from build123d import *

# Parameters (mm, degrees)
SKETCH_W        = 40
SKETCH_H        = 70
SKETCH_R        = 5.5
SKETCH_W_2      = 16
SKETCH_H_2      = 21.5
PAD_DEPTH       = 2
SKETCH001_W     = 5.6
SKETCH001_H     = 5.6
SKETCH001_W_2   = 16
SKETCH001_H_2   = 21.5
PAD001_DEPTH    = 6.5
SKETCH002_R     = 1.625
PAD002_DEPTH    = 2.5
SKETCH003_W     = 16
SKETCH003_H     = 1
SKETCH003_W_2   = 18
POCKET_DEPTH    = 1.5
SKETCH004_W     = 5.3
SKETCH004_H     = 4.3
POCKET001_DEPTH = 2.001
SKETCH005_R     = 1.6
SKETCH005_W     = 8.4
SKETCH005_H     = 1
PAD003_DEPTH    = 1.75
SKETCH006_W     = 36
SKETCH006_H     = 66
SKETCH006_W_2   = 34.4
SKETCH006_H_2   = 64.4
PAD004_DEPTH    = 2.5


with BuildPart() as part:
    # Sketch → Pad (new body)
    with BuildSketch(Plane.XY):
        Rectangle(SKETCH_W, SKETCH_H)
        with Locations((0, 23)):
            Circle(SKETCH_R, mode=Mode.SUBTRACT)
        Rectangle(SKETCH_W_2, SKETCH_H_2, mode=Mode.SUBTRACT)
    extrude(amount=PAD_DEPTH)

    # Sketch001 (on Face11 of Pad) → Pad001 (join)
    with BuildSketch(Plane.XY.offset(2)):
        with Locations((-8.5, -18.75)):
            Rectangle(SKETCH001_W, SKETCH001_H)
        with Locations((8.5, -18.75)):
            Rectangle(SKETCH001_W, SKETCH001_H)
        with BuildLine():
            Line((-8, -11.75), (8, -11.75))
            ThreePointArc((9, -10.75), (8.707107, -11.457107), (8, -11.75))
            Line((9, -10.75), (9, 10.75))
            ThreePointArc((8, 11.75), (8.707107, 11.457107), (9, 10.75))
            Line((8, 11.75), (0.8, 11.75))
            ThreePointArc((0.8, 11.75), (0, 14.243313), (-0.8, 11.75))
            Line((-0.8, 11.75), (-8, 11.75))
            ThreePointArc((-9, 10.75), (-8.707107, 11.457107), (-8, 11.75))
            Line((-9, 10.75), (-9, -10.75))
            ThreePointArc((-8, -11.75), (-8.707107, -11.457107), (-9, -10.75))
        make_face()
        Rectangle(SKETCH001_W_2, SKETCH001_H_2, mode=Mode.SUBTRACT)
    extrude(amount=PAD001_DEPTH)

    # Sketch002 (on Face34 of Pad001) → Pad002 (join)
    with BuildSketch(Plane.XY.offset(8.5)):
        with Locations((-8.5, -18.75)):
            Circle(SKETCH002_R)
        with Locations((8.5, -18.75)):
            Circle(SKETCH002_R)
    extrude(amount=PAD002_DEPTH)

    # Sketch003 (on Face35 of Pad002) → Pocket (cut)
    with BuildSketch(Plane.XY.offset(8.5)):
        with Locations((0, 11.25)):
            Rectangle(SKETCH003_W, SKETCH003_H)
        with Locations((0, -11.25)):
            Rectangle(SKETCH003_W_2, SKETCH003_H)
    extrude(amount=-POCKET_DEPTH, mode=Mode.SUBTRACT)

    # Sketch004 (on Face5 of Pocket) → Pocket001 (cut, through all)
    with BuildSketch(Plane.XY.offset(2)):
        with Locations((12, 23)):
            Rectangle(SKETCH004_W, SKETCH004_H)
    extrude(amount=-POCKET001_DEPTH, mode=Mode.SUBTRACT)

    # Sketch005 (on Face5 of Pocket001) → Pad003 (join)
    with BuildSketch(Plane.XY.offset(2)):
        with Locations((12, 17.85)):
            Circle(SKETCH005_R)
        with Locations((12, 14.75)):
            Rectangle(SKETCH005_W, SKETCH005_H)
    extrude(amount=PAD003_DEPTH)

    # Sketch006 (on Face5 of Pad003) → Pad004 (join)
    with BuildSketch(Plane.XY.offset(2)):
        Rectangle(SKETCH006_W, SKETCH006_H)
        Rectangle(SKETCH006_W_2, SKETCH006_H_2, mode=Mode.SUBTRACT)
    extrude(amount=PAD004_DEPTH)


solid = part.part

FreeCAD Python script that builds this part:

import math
import FreeCAD as App
import Part
import Sketcher

V = App.Vector

doc = App.newDocument("Part")
params = doc.addObject("Spreadsheet::Sheet", "Params")
for row, (alias, value) in enumerate([
    ("sketch1_diameter", "11 mm"),
    ("sketch1_width", "40 mm"),
    ("sketch1_width2", "16 mm"),
    ("sketch1_height", "70 mm"),
    ("sketch1_height2", "21.5 mm"),
    ("pad1_length", "2 mm"),
    ("sketch2_radius", "0.999999 mm"),
    ("sketch2_width", "16 mm"),
    ("sketch2_width2", "5.6 mm"),
    ("sketch2_width3", "7.2 mm"),
    ("sketch2_height", "21.5 mm"),
    ("pad2_length", "6.5 mm"),
    ("sketch3_diameter", "3.25 mm"),
    ("pad3_length", "2.5 mm"),
    ("sketch4_width", "16 mm"),
    ("sketch4_width2", "18 mm"),
    ("sketch4_height", "1 mm"),
    ("pocket1_length", "1.5 mm"),
    ("sketch5_width", "5.3 mm"),
    ("sketch5_height", "4.3 mm"),
    ("sketch6_diameter", "3.2 mm"),
    ("sketch6_height", "1 mm"),
    ("sketch6_width", "8.4 mm"),
    ("pad4_length", "1.75 mm"),
    ("sketch7_width", "36 mm"),
    ("sketch7_height", "66 mm"),
    ("sketch7_width2", "34.4 mm"),
    ("sketch7_height2", "64.4 mm"),
    ("pad5_length", "2.5 mm"),
], start=1):
    params.set(f"A{row}", alias)
    params.set(f"B{row}", "=" + value)
    params.setAlias(f"B{row}", alias)

body = doc.addObject("PartDesign::Body", "Body")

# Sketch on XY plane
sketch1 = body.newObject("Sketcher::SketchObject", "Sketch")
sketch1.AttachmentSupport = (doc.getObject("XY_Plane"), [""])
sketch1.MapMode = "FlatFace"
sketch1.addGeometry([
    Part.LineSegment(V(-20, 35, 0), V(-20, -35, 0)),  # 0
    Part.LineSegment(V(-20, -35, 0), V(20, -35, 0)),  # 1
    Part.LineSegment(V(20, -35, 0), V(20, 35, 0)),  # 2
    Part.LineSegment(V(20, 35, 0), V(-20, 35, 0)),  # 3
    Part.LineSegment(V(8, -11, 0), V(-8, -11, 0)),  # 4
    Part.LineSegment(V(-8, -11, 0), V(-8, 11, 0)),  # 5
    Part.LineSegment(V(-8, 11, 0), V(8, 11, 0)),  # 6
    Part.LineSegment(V(8, 11, 0), V(8, -11, 0)),  # 7
    Part.Circle(V(0, 23, 0), V(0, 0, 1), 6),  # 8
], False)
sketch1.addConstraint([
    Sketcher.Constraint("Coincident", 0, 2, 1, 1),
    Sketcher.Constraint("Coincident", 1, 2, 2, 1),
    Sketcher.Constraint("Coincident", 2, 2, 3, 1),
    Sketcher.Constraint("Coincident", 3, 2, 0, 1),
    Sketcher.Constraint("Coincident", 4, 2, 5, 1),
    Sketcher.Constraint("Coincident", 5, 2, 6, 1),
    Sketcher.Constraint("Coincident", 6, 2, 7, 1),
    Sketcher.Constraint("Coincident", 7, 2, 4, 1),
    Sketcher.Constraint("Vertical", 0),
    Sketcher.Constraint("Horizontal", 1),
    Sketcher.Constraint("Vertical", 2),
    Sketcher.Constraint("Horizontal", 3),
    Sketcher.Constraint("Horizontal", 4),
    Sketcher.Constraint("Vertical", 5),
    Sketcher.Constraint("Horizontal", 6),
    Sketcher.Constraint("Vertical", 7),
    Sketcher.Constraint("Symmetric", 0, 2, 2, 2, -1, 1),
    Sketcher.Constraint("Symmetric", 4, 2, 6, 2, -1, 1),
    Sketcher.Constraint("PointOnObject", 8, 3, -2),
    Sketcher.Constraint("Diameter", 8, 11.0),
    Sketcher.Constraint("DistanceX", 1, 1, 1, 2, 40.0),
    Sketcher.Constraint("DistanceX", 4, 2, 4, 1, 16.0),
    Sketcher.Constraint("DistanceY", 0, 2, 0, 1, 70.0),
    Sketcher.Constraint("DistanceY", 5, 1, 5, 2, 21.5),
    Sketcher.Constraint("DistanceY", -1, 1, 8, 3, 23.0),
])
sketch1.setExpression("Constraints[19]", "Params.sketch1_diameter")
sketch1.setExpression("Constraints[20]", "Params.sketch1_width")
sketch1.setExpression("Constraints[21]", "Params.sketch1_width2")
sketch1.setExpression("Constraints[22]", "Params.sketch1_height")
sketch1.setExpression("Constraints[23]", "Params.sketch1_height2")
pad1 = body.newObject("PartDesign::Pad", "Pad")
pad1.Profile = sketch1
pad1.setExpression("Length", "Params.pad1_length")

# Sketch on XY plane
sketch2 = body.newObject("Sketcher::SketchObject", "Sketch001")
sketch2.AttachmentSupport = (doc.getObject("XY_Plane"), [""])
sketch2.MapMode = "FlatFace"
sketch2.AttachmentOffset = App.Placement(V(0, 0, 2), App.Rotation())
sketch2.addGeometry([
    Part.LineSegment(V(-11.3, -15.9, 0), V(-11.3, -21.6, 0)),  # 0
    Part.LineSegment(V(-11.3, -21.6, 0), V(-5.7, -21.6, 0)),  # 1
    Part.LineSegment(V(-5.7, -21.6, 0), V(-5.7, -15.9, 0)),  # 2
    Part.LineSegment(V(-5.7, -15.9, 0), V(-11.3, -15.9, 0)),  # 3
    Part.LineSegment(V(5.7, -15.9, 0), V(5.7, -21.6, 0)),  # 4
    Part.LineSegment(V(5.7, -21.6, 0), V(11.3, -21.6, 0)),  # 5
    Part.LineSegment(V(11.3, -21.6, 0), V(11.3, -15.9, 0)),  # 6
    Part.LineSegment(V(11.3, -15.9, 0), V(5.7, -15.9, 0)),  # 7
    Part.LineSegment(V(-8, -11.8, 0), V(8, -11.8, 0)),  # 8
    Part.ArcOfCircle(Part.Circle(V(8, -10.8, 0), V(0, 0, 1), 1), math.radians(-90), math.radians(0)),  # 9
    Part.LineSegment(V(9, -10.8, 0), V(9, 10.8, 0)),  # 10
    Part.ArcOfCircle(Part.Circle(V(8, 10.8, 0), V(0, 0, 1), 1), math.radians(0), math.radians(90)),  # 11
    Part.LineSegment(V(8, 11.8, 0), V(0.8, 11.8, 0)),  # 12
    Part.ArcOfCircle(Part.Circle(V(0, 12.9, 0), V(0, 0, 1), 1.4), math.radians(-54), math.radians(234)),  # 13
    Part.LineSegment(V(-0.8, 11.8, 0), V(-8, 11.8, 0)),  # 14
    Part.ArcOfCircle(Part.Circle(V(-8, 10.8, 0), V(0, 0, 1), 1), math.radians(90), math.radians(180)),  # 15
    Part.LineSegment(V(-9, 10.8, 0), V(-9, -10.8, 0)),  # 16
    Part.ArcOfCircle(Part.Circle(V(-8, -10.8, 0), V(0, 0, 1), 1), math.radians(180), math.radians(270)),  # 17
    Part.LineSegment(V(8, -10.8, 0), V(-8, -10.8, 0)),  # 18
    Part.LineSegment(V(-8, -10.8, 0), V(-8, 10.8, 0)),  # 19
    Part.LineSegment(V(-8, 10.8, 0), V(8, 10.8, 0)),  # 20
    Part.LineSegment(V(8, 10.8, 0), V(8, -10.8, 0)),  # 21
], False)
sketch2.addConstraint([
    Sketcher.Constraint("Coincident", 0, 2, 1, 1),
    Sketcher.Constraint("Coincident", 1, 2, 2, 1),
    Sketcher.Constraint("Coincident", 2, 2, 3, 1),
    Sketcher.Constraint("Coincident", 3, 2, 0, 1),
    Sketcher.Constraint("Coincident", 4, 2, 5, 1),
    Sketcher.Constraint("Coincident", 5, 2, 6, 1),
    Sketcher.Constraint("Coincident", 6, 2, 7, 1),
    Sketcher.Constraint("Coincident", 7, 2, 4, 1),
    Sketcher.Constraint("Tangent", 8, 2, 9, 1),
    Sketcher.Constraint("Tangent", 9, 2, 10, 1),
    Sketcher.Constraint("Tangent", 10, 2, 11, 1),
    Sketcher.Constraint("Tangent", 11, 2, 12, 1),
    Sketcher.Constraint("Coincident", 12, 2, 13, 1),
    Sketcher.Constraint("Coincident", 13, 2, 14, 1),
    Sketcher.Constraint("Tangent", 14, 2, 15, 1),
    Sketcher.Constraint("Tangent", 15, 2, 16, 1),
    Sketcher.Constraint("Tangent", 16, 2, 17, 1),
    Sketcher.Constraint("Tangent", 17, 2, 8, 1),
    Sketcher.Constraint("Coincident", 18, 2, 19, 1),
    Sketcher.Constraint("Coincident", 19, 2, 20, 1),
    Sketcher.Constraint("Coincident", 20, 2, 21, 1),
    Sketcher.Constraint("Coincident", 21, 2, 18, 1),
    Sketcher.Constraint("Vertical", 0),
    Sketcher.Constraint("Horizontal", 1),
    Sketcher.Constraint("Vertical", 2),
    Sketcher.Constraint("Horizontal", 3),
    Sketcher.Constraint("Vertical", 4),
    Sketcher.Constraint("Horizontal", 5),
    Sketcher.Constraint("Vertical", 6),
    Sketcher.Constraint("Horizontal", 7),
    Sketcher.Constraint("Horizontal", 8),
    Sketcher.Constraint("Vertical", 10),
    Sketcher.Constraint("Horizontal", 12),
    Sketcher.Constraint("Horizontal", 14),
    Sketcher.Constraint("Vertical", 16),
    Sketcher.Constraint("Horizontal", 18),
    Sketcher.Constraint("Vertical", 19),
    Sketcher.Constraint("Horizontal", 20),
    Sketcher.Constraint("Vertical", 21),
    Sketcher.Constraint("Coincident", 18, 2, 17, 3),
    Sketcher.Constraint("Coincident", 19, 2, 15, 3),
    Sketcher.Constraint("Coincident", 20, 2, 11, 3),
    Sketcher.Constraint("Coincident", 21, 2, 9, 3),
    Sketcher.Constraint("Symmetric", 9, 3, 15, 3, -1, 1),
    Sketcher.Constraint("Symmetric", 1, 2, 4, 2, -2),
    Sketcher.Constraint("Symmetric", 3, 2, 6, 2, -2),
    Sketcher.Constraint("PointOnObject", 13, 3, -2),
    Sketcher.Constraint("Equal", 7, 0),
    Sketcher.Constraint("Radius", 9, 0.999999),
    Sketcher.Constraint("DistanceX", 8, 1, 8, 2, 16.0),
    Sketcher.Constraint("DistanceX", 1, 1, 1, 2, 5.6),
    Sketcher.Constraint("DistanceX", 12, 2, 12, 1, 7.2),
    Sketcher.Constraint("DistanceY", 10, 1, 10, 2, 21.5),
    Sketcher.Constraint("Radius", 13, 1.375),
    Sketcher.Constraint("DistanceX", 0, 2, 4, 2, 17.0),
    Sketcher.Constraint("DistanceY", 0, 2, 17, 3, 10.799999),
])
sketch2.setExpression("Constraints[48]", "Params.sketch2_radius")
sketch2.setExpression("Constraints[49]", "Params.sketch2_width")
sketch2.setExpression("Constraints[50]", "Params.sketch2_width2")
sketch2.setExpression("Constraints[51]", "Params.sketch2_width3")
sketch2.setExpression("Constraints[52]", "Params.sketch2_height")
pad2 = body.newObject("PartDesign::Pad", "Pad001")
pad2.Profile = sketch2
pad2.setExpression("Length", "Params.pad2_length")

# Sketch on XY plane
sketch3 = body.newObject("Sketcher::SketchObject", "Sketch002")
sketch3.AttachmentSupport = (doc.getObject("XY_Plane"), [""])
sketch3.MapMode = "FlatFace"
sketch3.AttachmentOffset = App.Placement(V(0, 0, 8.5), App.Rotation())
sketch3.addGeometry([
    Part.Circle(V(-8.5, -18.8, 0), V(0, 0, 1), 1.6),
    Part.Circle(V(8.5, -18.8, 0), V(0, 0, 1), 1.6),
], False)
sketch3.addConstraint([
    Sketcher.Constraint("Equal", 0, 1),
    Sketcher.Constraint("Symmetric", 0, 3, 1, 3, -2),
    Sketcher.Constraint("Diameter", 0, 3.25),
    Sketcher.Constraint("DistanceX", 0, 3, 1, 3, 17.0),
    Sketcher.Constraint("DistanceY", 0, 3, -1, 1, 18.75),
])
sketch3.setExpression("Constraints[2]", "Params.sketch3_diameter")
pad3 = body.newObject("PartDesign::Pad", "Pad002")
pad3.Profile = sketch3
pad3.setExpression("Length", "Params.pad3_length")

# Sketch on XY plane
sketch4 = body.newObject("Sketcher::SketchObject", "Sketch003")
sketch4.AttachmentSupport = (doc.getObject("XY_Plane"), [""])
sketch4.MapMode = "FlatFace"
sketch4.AttachmentOffset = App.Placement(V(0, 0, 8.5), App.Rotation())
sketch4.addGeometry([
    Part.LineSegment(V(-8, 11.8, 0), V(-8, 10.8, 0)),  # 0
    Part.LineSegment(V(-8, 10.8, 0), V(8, 10.8, 0)),  # 1
    Part.LineSegment(V(8, 10.8, 0), V(8, 11.8, 0)),  # 2
    Part.LineSegment(V(8, 11.8, 0), V(-8, 11.8, 0)),  # 3
    Part.LineSegment(V(-9, -10.8, 0), V(-9, -11.8, 0)),  # 4
    Part.LineSegment(V(-9, -11.8, 0), V(9, -11.8, 0)),  # 5
    Part.LineSegment(V(9, -11.8, 0), V(9, -10.8, 0)),  # 6
    Part.LineSegment(V(9, -10.8, 0), V(-9, -10.8, 0)),  # 7
], False)
sketch4.addConstraint([
    Sketcher.Constraint("Coincident", 0, 2, 1, 1),
    Sketcher.Constraint("Coincident", 1, 2, 2, 1),
    Sketcher.Constraint("Coincident", 2, 2, 3, 1),
    Sketcher.Constraint("Coincident", 3, 2, 0, 1),
    Sketcher.Constraint("Coincident", 4, 2, 5, 1),
    Sketcher.Constraint("Coincident", 5, 2, 6, 1),
    Sketcher.Constraint("Coincident", 6, 2, 7, 1),
    Sketcher.Constraint("Coincident", 7, 2, 4, 1),
    Sketcher.Constraint("Vertical", 0),
    Sketcher.Constraint("Horizontal", 1),
    Sketcher.Constraint("Vertical", 2),
    Sketcher.Constraint("Horizontal", 3),
    Sketcher.Constraint("Vertical", 4),
    Sketcher.Constraint("Horizontal", 5),
    Sketcher.Constraint("Vertical", 6),
    Sketcher.Constraint("Horizontal", 7),
    Sketcher.Constraint("Equal", 2, 4),
    Sketcher.Constraint("DistanceX", 1, 1, 1, 2, 16.0),
    Sketcher.Constraint("DistanceX", 5, 1, 5, 2, 18.0),
    Sketcher.Constraint("DistanceY", 0, 2, 0, 1, 1.0),
    Sketcher.Constraint("DistanceX", 0, 2, -1, 1, 8.0),
    Sketcher.Constraint("DistanceX", 4, 2, -1, 1, 9.0),
    Sketcher.Constraint("DistanceY", 4, 2, 0, 2, 22.5),
    Sketcher.Constraint("DistanceY", -1, 1, 0, 2, 10.75),
])
sketch4.setExpression("Constraints[17]", "Params.sketch4_width")
sketch4.setExpression("Constraints[18]", "Params.sketch4_width2")
sketch4.setExpression("Constraints[19]", "Params.sketch4_height")
pocket1 = body.newObject("PartDesign::Pocket", "Pocket")
pocket1.Profile = sketch4
pocket1.setExpression("Length", "Params.pocket1_length")

# Sketch on XY plane
sketch5 = body.newObject("Sketcher::SketchObject", "Sketch004")
sketch5.AttachmentSupport = (doc.getObject("XY_Plane"), [""])
sketch5.MapMode = "FlatFace"
sketch5.AttachmentOffset = App.Placement(V(0, 0, 2), App.Rotation())
sketch5.addGeometry([
    Part.LineSegment(V(9.3, 25.1, 0), V(9.3, 20.9, 0)),
    Part.LineSegment(V(9.3, 20.9, 0), V(14.7, 20.9, 0)),
    Part.LineSegment(V(14.7, 20.9, 0), V(14.7, 25.1, 0)),
    Part.LineSegment(V(14.7, 25.1, 0), V(9.3, 25.1, 0)),
], False)
sketch5.addConstraint([
    Sketcher.Constraint("Coincident", 0, 2, 1, 1),
    Sketcher.Constraint("Coincident", 1, 2, 2, 1),
    Sketcher.Constraint("Coincident", 2, 2, 3, 1),
    Sketcher.Constraint("Coincident", 3, 2, 0, 1),
    Sketcher.Constraint("Vertical", 0),
    Sketcher.Constraint("Horizontal", 1),
    Sketcher.Constraint("Vertical", 2),
    Sketcher.Constraint("Horizontal", 3),
    Sketcher.Constraint("DistanceX", 1, 1, 1, 2, 5.3),
    Sketcher.Constraint("DistanceY", 0, 2, 0, 1, 4.3),
    Sketcher.Constraint("DistanceX", -1, 1, 0, 2, 9.35),
    Sketcher.Constraint("DistanceY", -1, 1, 0, 2, 20.85),
])
sketch5.setExpression("Constraints[8]", "Params.sketch5_width")
sketch5.setExpression("Constraints[9]", "Params.sketch5_height")
pocket2 = body.newObject("PartDesign::Pocket", "Pocket001")
pocket2.Profile = sketch5
pocket2.Type = "ThroughAll"

# Sketch on XY plane
sketch6 = body.newObject("Sketcher::SketchObject", "Sketch005")
sketch6.AttachmentSupport = (doc.getObject("XY_Plane"), [""])
sketch6.MapMode = "FlatFace"
sketch6.AttachmentOffset = App.Placement(V(0, 0, 2), App.Rotation())
sketch6.addGeometry([
    Part.Circle(V(12, 17.9, 0), V(0, 0, 1), 1.6),  # 0
    Part.LineSegment(V(7.8, 15.2, 0), V(7.8, 14.2, 0)),  # 1
    Part.LineSegment(V(7.8, 14.2, 0), V(16.2, 14.2, 0)),  # 2
    Part.LineSegment(V(16.2, 14.2, 0), V(16.2, 15.2, 0)),  # 3
    Part.LineSegment(V(16.2, 15.2, 0), V(7.8, 15.2, 0)),  # 4
], False)
sketch6.addConstraint([
    Sketcher.Constraint("Coincident", 1, 2, 2, 1),
    Sketcher.Constraint("Coincident", 2, 2, 3, 1),
    Sketcher.Constraint("Coincident", 3, 2, 4, 1),
    Sketcher.Constraint("Coincident", 4, 2, 1, 1),
    Sketcher.Constraint("Vertical", 1),
    Sketcher.Constraint("Horizontal", 2),
    Sketcher.Constraint("Vertical", 3),
    Sketcher.Constraint("Horizontal", 4),
    Sketcher.Constraint("Diameter", 0, 3.2),
    Sketcher.Constraint("DistanceY", 1, 2, 1, 1, 1.0),
    Sketcher.Constraint("DistanceX", 2, 1, 2, 2, 8.4),
    Sketcher.Constraint("DistanceX", -1, 1, 0, 3, 12.0),
    Sketcher.Constraint("DistanceX", -1, 1, 1, 2, 7.8),
    Sketcher.Constraint("DistanceY", 1, 2, 0, 3, 3.6),
    Sketcher.Constraint("DistanceY", -1, 1, 0, 3, 17.85),
])
sketch6.setExpression("Constraints[8]", "Params.sketch6_diameter")
sketch6.setExpression("Constraints[9]", "Params.sketch6_height")
sketch6.setExpression("Constraints[10]", "Params.sketch6_width")
pad4 = body.newObject("PartDesign::Pad", "Pad003")
pad4.Profile = sketch6
pad4.setExpression("Length", "Params.pad4_length")

# Sketch on XY plane
sketch7 = body.newObject("Sketcher::SketchObject", "Sketch006")
sketch7.AttachmentSupport = (doc.getObject("XY_Plane"), [""])
sketch7.MapMode = "FlatFace"
sketch7.AttachmentOffset = App.Placement(V(0, 0, 2), App.Rotation())
sketch7.addGeometry([
    Part.LineSegment(V(-18, 33, 0), V(-18, -33, 0)),  # 0
    Part.LineSegment(V(-18, -33, 0), V(18, -33, 0)),  # 1
    Part.LineSegment(V(18, -33, 0), V(18, 33, 0)),  # 2
    Part.LineSegment(V(18, 33, 0), V(-18, 33, 0)),  # 3
    Part.LineSegment(V(17, -32, 0), V(-17, -32, 0)),  # 4
    Part.LineSegment(V(-17, -32, 0), V(-17, 32, 0)),  # 5
    Part.LineSegment(V(-17, 32, 0), V(17, 32, 0)),  # 6
    Part.LineSegment(V(17, 32, 0), V(17, -32, 0)),  # 7
], False)
sketch7.addConstraint([
    Sketcher.Constraint("Coincident", 0, 2, 1, 1),
    Sketcher.Constraint("Coincident", 1, 2, 2, 1),
    Sketcher.Constraint("Coincident", 2, 2, 3, 1),
    Sketcher.Constraint("Coincident", 3, 2, 0, 1),
    Sketcher.Constraint("Coincident", 4, 2, 5, 1),
    Sketcher.Constraint("Coincident", 5, 2, 6, 1),
    Sketcher.Constraint("Coincident", 6, 2, 7, 1),
    Sketcher.Constraint("Coincident", 7, 2, 4, 1),
    Sketcher.Constraint("Vertical", 0),
    Sketcher.Constraint("Horizontal", 1),
    Sketcher.Constraint("Vertical", 2),
    Sketcher.Constraint("Horizontal", 3),
    Sketcher.Constraint("Horizontal", 4),
    Sketcher.Constraint("Vertical", 5),
    Sketcher.Constraint("Horizontal", 6),
    Sketcher.Constraint("Vertical", 7),
    Sketcher.Constraint("Symmetric", 0, 2, 2, 2, -1, 1),
    Sketcher.Constraint("Symmetric", 4, 2, 6, 2, -1, 1),
    Sketcher.Constraint("DistanceX", 1, 1, 1, 2, 36.0),
    Sketcher.Constraint("DistanceY", 0, 2, 0, 1, 66.0),
    Sketcher.Constraint("DistanceX", 4, 2, 4, 1, 34.4),
    Sketcher.Constraint("DistanceY", 5, 1, 5, 2, 64.4),
])
sketch7.setExpression("Constraints[18]", "Params.sketch7_width")
sketch7.setExpression("Constraints[19]", "Params.sketch7_height")
sketch7.setExpression("Constraints[20]", "Params.sketch7_width2")
sketch7.setExpression("Constraints[21]", "Params.sketch7_height2")
pad5 = body.newObject("PartDesign::Pad", "Pad004")
pad5.Profile = sketch7
pad5.setExpression("Length", "Params.pad5_length")

doc.recompute()
